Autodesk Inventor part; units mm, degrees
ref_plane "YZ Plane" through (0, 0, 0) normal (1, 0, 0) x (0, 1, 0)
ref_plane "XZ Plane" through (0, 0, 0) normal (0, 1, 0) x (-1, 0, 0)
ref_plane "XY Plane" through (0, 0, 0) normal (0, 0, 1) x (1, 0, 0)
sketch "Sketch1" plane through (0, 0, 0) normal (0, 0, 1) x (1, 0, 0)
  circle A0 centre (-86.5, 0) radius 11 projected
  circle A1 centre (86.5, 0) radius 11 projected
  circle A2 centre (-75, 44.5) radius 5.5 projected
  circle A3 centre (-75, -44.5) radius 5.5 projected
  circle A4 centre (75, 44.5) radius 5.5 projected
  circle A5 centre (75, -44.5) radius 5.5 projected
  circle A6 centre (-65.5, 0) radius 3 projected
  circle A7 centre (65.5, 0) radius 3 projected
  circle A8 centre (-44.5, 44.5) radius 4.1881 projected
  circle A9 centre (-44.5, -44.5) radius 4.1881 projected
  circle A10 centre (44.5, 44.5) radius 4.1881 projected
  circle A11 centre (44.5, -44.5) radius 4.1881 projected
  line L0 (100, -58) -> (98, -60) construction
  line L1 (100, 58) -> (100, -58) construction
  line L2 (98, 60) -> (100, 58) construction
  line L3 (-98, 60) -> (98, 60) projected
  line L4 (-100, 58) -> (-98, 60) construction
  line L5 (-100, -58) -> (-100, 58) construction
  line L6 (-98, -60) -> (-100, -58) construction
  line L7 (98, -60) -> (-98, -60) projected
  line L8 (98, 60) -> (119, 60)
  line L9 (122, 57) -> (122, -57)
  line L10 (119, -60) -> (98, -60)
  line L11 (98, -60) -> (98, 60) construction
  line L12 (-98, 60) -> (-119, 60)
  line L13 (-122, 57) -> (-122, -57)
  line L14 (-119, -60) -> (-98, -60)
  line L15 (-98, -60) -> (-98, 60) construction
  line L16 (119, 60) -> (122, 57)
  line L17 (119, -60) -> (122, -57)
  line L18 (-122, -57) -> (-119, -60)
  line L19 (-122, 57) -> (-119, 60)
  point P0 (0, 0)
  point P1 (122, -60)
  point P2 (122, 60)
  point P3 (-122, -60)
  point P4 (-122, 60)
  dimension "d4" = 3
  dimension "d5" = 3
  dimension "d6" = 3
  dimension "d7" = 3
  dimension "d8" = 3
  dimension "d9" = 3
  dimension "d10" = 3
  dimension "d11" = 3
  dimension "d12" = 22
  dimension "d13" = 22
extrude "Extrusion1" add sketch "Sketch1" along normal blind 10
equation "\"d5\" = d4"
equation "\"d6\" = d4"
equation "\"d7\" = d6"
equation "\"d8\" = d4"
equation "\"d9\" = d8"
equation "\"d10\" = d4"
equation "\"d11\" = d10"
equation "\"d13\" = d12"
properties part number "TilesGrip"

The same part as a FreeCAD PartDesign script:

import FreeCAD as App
import Part
import Sketcher


def add_polygon(sketch, points):
    """Adds a closed chain of lines whose ends are joined by coincident constraints."""
    first, n = sketch.GeometryCount, len(points)
    for a, b in zip(points, points[1:] + points[:1]):
        sketch.addGeometry(Part.LineSegment(App.Vector(*a, 0), App.Vector(*b, 0)), False)
    for i in range(n):
        sketch.addConstraint(Sketcher.Constraint("Coincident", first + i, 2, first + (i + 1) % n, 1))

doc = App.newDocument("Part")
body = doc.addObject("PartDesign::Body", "Body")

# Sketch on XY plane
sketch1 = body.newObject("Sketcher::SketchObject", "Sketch")
sketch1.AttachmentSupport = (doc.getObject("XY_Plane"), [""])
sketch1.MapMode = "FlatFace"
add_polygon(sketch1, [(119, 60), (-119, 60), (-122, 57), (-122, -57), (-119, -60), (119, -60), (122, -57), (122, 57)])  # lines 0-7
sketch1.addGeometry(Part.Circle(App.Vector(-75, -44.5, 0), App.Vector(0, 0, 1), 5.5), False)  # 8
sketch1.addGeometry(Part.Circle(App.Vector(-44.5, -44.5, 0), App.Vector(0, 0, 1), 4.2), False)  # 9
sketch1.addGeometry(Part.Circle(App.Vector(44.5, -44.5, 0), App.Vector(0, 0, 1), 4.2), False)  # 10
sketch1.addGeometry(Part.Circle(App.Vector(75, -44.5, 0), App.Vector(0, 0, 1), 5.5), False)  # 11
sketch1.addGeometry(Part.Circle(App.Vector(-86.5, 0, 0), App.Vector(0, 0, 1), 11), False)  # 12
sketch1.addGeometry(Part.Circle(App.Vector(-65.5, 0, 0), App.Vector(0, 0, 1), 3), False)  # 13
sketch1.addGeometry(Part.Circle(App.Vector(-75, 44.5, 0), App.Vector(0, 0, 1), 5.5), False)  # 14
sketch1.addGeometry(Part.Circle(App.Vector(-44.5, 44.5, 0), App.Vector(0, 0, 1), 4.2), False)  # 15
sketch1.addGeometry(Part.Circle(App.Vector(65.5, 0, 0), App.Vector(0, 0, 1), 3), False)  # 16
sketch1.addGeometry(Part.Circle(App.Vector(86.5, 0, 0), App.Vector(0, 0, 1), 11), False)  # 17
sketch1.addGeometry(Part.Circle(App.Vector(44.5, 44.5, 0), App.Vector(0, 0, 1), 4.2), False)  # 18
sketch1.addGeometry(Part.Circle(App.Vector(75, 44.5, 0), App.Vector(0, 0, 1), 5.5), False)  # 19
sketch1.addConstraint(Sketcher.Constraint("Horizontal", 0))
sketch1.addConstraint(Sketcher.Constraint("Vertical", 2))
sketch1.addConstraint(Sketcher.Constraint("Horizontal", 4))
sketch1.addConstraint(Sketcher.Constraint("Vertical", 6))
sketch1.addConstraint(Sketcher.Constraint("Equal", 9, 10))
sketch1.addConstraint(Sketcher.Constraint("Equal", 8, 11))
sketch1.addConstraint(Sketcher.Constraint("Equal", 11, 14))
sketch1.addConstraint(Sketcher.Constraint("Equal", 10, 15))
sketch1.addConstraint(Sketcher.Constraint("Equal", 13, 16))
sketch1.addConstraint(Sketcher.Constraint("Equal", 12, 17))
sketch1.addConstraint(Sketcher.Constraint("Equal", 15, 18))
sketch1.addConstraint(Sketcher.Constraint("Equal", 14, 19))
sketch1.addConstraint(Sketcher.Constraint("Symmetric", 11, 3, 14, 3, -1, 1))
sketch1.addConstraint(Sketcher.Constraint("Symmetric", 10, 3, 15, 3, -1, 1))
sketch1.addConstraint(Sketcher.Constraint("Symmetric", 13, 3, 16, 3, -1, 1))
sketch1.addConstraint(Sketcher.Constraint("Symmetric", 12, 3, 17, 3, -1, 1))
sketch1.addConstraint(Sketcher.Constraint("Symmetric", 9, 3, 18, 3, -1, 1))
sketch1.addConstraint(Sketcher.Constraint("Symmetric", 8, 3, 19, 3, -1, 1))
sketch1.addConstraint(Sketcher.Constraint("Symmetric", 0, 2, 4, 2, -1, 1))
sketch1.addConstraint(Sketcher.Constraint("Symmetric", 1, 2, 5, 2, -1, 1))
sketch1.addConstraint(Sketcher.Constraint("Symmetric", 9, 3, 10, 3, -2))
sketch1.addConstraint(Sketcher.Constraint("Symmetric", 8, 3, 11, 3, -2))
sketch1.addConstraint(Sketcher.Constraint("PointOnObject", 12, 3, -1))
sketch1.addConstraint(Sketcher.Constraint("PointOnObject", 13, 3, -1))
sketch1.addConstraint(Sketcher.Constraint("Perpendicular", 1, 3))
sketch1.addConstraint(Sketcher.Constraint("Perpendicular", 5, 7))
sketch1.addConstraint(Sketcher.Constraint("Horizontal", 8, 3, 9, 3))
sketch1.addConstraint(Sketcher.Constraint("Horizontal", 2, 2, 5, 2))
sketch1.addConstraint(Sketcher.Constraint("Horizontal", 1, 2, 6, 2))
sketch1.addConstraint(Sketcher.Constraint("Vertical", 0, 2, 3, 2))
sketch1.addConstraint(Sketcher.Constraint("Diameter", 12, 22.0))
sketch1.addConstraint(Sketcher.Constraint("Diameter", 13, 6.0))
sketch1.addConstraint(Sketcher.Constraint("Diameter", 8, 11.0))
sketch1.addConstraint(Sketcher.Constraint("DistanceX", 1, 2, 0, 2, 3.0))
sketch1.addConstraint(Sketcher.Constraint("DistanceX", 0, 2, 0, 1, 238.0))
sketch1.addConstraint(Sketcher.Constraint("DistanceY", 2, 2, 2, 1, 114.0))
sketch1.addConstraint(Sketcher.Constraint("DistanceX", 8, 3, -1, 1, 75.0))
sketch1.addConstraint(Sketcher.Constraint("DistanceX", 9, 3, 10, 3, 89.0))
sketch1.addConstraint(Sketcher.Constraint("DistanceX", 12, 3, 9, 3, 42.0))
sketch1.addConstraint(Sketcher.Constraint("DistanceX", 12, 3, 13, 3, 21.0))
sketch1.addConstraint(Sketcher.Constraint("DistanceY", 8, 3, 14, 3, 89.0))
sketch1.addConstraint(Sketcher.Constraint("Diameter", 9, 8.3762))
pad1 = body.newObject("PartDesign::Pad", "Pad")
pad1.Profile = sketch1
pad1.Length = 10

doc.recompute()
